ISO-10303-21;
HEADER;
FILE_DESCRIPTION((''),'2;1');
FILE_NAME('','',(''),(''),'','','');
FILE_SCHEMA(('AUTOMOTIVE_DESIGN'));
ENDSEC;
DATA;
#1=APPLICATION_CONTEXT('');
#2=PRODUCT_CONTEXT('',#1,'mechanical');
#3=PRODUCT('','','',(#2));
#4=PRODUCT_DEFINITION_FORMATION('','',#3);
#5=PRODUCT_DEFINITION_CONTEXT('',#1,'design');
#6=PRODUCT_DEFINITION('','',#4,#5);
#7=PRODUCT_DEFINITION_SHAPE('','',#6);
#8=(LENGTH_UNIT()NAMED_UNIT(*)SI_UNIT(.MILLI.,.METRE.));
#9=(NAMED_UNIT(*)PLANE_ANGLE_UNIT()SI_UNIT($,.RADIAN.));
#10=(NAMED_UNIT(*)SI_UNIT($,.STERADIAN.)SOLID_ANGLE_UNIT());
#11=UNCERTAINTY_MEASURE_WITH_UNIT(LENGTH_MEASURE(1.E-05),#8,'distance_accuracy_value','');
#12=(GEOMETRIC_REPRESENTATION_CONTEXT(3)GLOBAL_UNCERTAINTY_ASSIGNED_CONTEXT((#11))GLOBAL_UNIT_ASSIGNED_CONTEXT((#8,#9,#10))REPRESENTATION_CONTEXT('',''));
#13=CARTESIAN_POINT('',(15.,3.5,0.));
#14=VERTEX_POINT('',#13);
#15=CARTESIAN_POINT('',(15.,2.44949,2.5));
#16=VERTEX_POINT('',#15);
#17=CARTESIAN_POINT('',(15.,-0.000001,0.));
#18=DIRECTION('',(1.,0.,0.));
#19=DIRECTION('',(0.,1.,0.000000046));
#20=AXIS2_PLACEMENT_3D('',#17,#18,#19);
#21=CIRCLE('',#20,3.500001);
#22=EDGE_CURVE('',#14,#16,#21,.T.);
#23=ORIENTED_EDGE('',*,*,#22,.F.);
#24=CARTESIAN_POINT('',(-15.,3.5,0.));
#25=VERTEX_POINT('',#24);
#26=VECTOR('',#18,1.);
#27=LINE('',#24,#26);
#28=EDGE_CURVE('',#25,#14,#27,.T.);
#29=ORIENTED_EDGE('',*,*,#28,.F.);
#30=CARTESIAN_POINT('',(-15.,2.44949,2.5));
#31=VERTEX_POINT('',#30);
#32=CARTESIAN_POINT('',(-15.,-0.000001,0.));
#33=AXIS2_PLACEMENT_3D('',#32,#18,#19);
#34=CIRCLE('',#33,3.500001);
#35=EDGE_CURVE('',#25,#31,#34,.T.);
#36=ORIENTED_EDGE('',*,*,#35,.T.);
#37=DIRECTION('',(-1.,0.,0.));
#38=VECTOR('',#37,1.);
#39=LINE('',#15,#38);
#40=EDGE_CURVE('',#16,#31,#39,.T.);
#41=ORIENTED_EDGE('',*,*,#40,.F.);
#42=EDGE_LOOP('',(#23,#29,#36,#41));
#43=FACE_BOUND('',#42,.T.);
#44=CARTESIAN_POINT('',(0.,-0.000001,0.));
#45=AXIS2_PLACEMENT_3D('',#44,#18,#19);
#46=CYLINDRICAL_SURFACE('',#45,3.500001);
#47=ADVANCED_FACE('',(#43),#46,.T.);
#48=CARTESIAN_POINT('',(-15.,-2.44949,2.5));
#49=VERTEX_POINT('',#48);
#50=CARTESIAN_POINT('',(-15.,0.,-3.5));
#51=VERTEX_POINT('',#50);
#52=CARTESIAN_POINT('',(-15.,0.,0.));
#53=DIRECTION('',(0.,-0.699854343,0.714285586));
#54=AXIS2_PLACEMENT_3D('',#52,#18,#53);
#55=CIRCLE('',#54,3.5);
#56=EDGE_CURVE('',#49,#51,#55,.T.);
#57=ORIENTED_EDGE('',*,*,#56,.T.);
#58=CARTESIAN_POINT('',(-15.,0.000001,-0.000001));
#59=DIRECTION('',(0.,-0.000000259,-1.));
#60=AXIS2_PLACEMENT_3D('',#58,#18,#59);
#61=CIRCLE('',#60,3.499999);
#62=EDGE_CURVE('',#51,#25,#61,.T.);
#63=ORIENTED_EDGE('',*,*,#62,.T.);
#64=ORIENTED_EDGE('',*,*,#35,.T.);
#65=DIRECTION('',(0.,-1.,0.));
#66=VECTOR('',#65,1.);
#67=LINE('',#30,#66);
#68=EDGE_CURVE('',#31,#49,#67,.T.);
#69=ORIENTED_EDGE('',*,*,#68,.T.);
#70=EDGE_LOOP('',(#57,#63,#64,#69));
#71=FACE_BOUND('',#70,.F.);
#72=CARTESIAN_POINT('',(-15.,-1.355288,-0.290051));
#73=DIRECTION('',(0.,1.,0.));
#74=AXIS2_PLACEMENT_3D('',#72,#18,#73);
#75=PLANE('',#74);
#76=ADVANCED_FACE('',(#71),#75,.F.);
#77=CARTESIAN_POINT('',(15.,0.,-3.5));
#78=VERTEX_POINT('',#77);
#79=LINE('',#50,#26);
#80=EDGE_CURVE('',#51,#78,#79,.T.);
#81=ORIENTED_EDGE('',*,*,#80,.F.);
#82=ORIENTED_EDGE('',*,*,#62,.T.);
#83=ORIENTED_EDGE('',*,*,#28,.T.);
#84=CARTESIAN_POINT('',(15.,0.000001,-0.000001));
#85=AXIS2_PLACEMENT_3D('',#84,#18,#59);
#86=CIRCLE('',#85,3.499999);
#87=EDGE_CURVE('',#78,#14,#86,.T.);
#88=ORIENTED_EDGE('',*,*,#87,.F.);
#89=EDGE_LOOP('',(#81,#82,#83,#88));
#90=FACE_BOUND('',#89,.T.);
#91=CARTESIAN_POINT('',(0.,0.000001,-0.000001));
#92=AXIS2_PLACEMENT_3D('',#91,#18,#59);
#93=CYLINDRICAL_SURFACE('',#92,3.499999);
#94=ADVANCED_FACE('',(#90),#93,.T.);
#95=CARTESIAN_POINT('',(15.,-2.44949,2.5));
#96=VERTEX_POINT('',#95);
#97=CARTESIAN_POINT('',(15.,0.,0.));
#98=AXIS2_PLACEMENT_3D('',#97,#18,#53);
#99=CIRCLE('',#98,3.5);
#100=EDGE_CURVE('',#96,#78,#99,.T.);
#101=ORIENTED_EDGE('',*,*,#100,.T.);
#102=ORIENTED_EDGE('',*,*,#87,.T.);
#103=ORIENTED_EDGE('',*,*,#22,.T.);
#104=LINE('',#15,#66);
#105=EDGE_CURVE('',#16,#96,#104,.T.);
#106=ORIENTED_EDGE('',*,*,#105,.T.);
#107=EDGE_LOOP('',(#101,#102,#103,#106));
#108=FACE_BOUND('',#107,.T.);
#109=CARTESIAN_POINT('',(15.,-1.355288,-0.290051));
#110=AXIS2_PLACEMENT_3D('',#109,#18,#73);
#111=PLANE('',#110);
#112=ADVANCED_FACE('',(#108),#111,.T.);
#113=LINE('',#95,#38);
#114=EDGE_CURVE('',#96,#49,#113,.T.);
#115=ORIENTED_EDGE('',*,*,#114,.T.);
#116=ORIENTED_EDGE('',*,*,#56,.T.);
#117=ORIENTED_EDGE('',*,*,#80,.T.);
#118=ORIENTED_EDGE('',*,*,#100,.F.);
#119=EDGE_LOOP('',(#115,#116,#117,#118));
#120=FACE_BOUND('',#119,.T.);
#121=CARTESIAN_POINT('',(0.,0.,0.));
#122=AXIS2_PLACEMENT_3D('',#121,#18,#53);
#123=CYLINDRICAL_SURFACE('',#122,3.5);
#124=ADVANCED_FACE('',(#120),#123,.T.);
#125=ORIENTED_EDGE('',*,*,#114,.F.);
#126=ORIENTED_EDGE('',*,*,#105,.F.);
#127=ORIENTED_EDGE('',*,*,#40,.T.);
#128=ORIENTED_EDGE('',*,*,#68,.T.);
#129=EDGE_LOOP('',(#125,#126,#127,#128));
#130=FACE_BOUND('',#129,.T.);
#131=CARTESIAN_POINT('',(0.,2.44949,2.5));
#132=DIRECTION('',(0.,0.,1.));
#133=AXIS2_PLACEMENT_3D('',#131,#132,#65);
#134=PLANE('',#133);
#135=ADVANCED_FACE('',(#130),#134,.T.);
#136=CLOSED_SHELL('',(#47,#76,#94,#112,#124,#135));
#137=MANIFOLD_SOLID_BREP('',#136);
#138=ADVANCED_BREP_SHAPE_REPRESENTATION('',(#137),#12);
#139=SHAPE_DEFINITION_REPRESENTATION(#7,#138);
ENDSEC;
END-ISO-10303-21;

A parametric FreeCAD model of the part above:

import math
import FreeCAD as App
import Part
import Sketcher

V = App.Vector
Q = App.Units.Quantity

doc = App.newDocument("Part")
body = doc.addObject("PartDesign::Body", "Body")

sketch1 = doc.addObject("Sketcher::SketchObject", "Sketch")
body.addObject(sketch1)
sketch1.AttachmentSupport = (doc.YZ_Plane, [""])
sketch1.MapMode = "FlatFace"
sketch1.addGeometry(Part.ArcOfCircle(Part.Circle(V(0, 0, 0), V(0, 0, 1), 3.5), math.radians(134), math.radians(270)), False)
sketch1.addGeometry(Part.ArcOfCircle(Part.Circle(V(0, 0, 0), V(0, 0, 1), 3.5), math.radians(-90), math.radians(0)), False)
sketch1.addGeometry(Part.ArcOfCircle(Part.Circle(V(0, 0, 0), V(0, 0, 1), 3.5), math.radians(0), math.radians(46)), False)
sketch1.addGeometry(Part.LineSegment(V(2.4, 2.5, 0), V(-2.4, 2.5, 0)), False)
sketch1.addConstraint(Sketcher.Constraint("Tangent", 0, 2, 1, 1))
sketch1.addConstraint(Sketcher.Constraint("Tangent", 1, 2, 2, 1))
sketch1.addConstraint(Sketcher.Constraint("Coincident", 2, 2, 3, 1))
sketch1.addConstraint(Sketcher.Constraint("Coincident", 3, 2, 0, 1))
sketch1.addConstraint(Sketcher.Constraint("Horizontal", 3))
sketch1.addConstraint(Sketcher.Constraint("Coincident", 0, 3, -1, 1))
sketch1.addConstraint(Sketcher.Constraint("Coincident", 2, 3, -1, 1))
sketch1.addConstraint(Sketcher.Constraint("PointOnObject", 0, 2, -2))
sketch1.addConstraint(Sketcher.Constraint("PointOnObject", 1, 2, -1))
sketch1.addConstraint(Sketcher.Constraint("Radius", 0, Q("3.5 mm")))
sketch1.addConstraint(Sketcher.Constraint("DistanceY", 0, 2, 2, 2, Q("6 mm")))
pad1 = doc.addObject("PartDesign::Pad", "Pad")
body.addObject(pad1)
pad1.Profile = sketch1
pad1.Length = 30
pad1.Midplane = True

doc.recompute()
